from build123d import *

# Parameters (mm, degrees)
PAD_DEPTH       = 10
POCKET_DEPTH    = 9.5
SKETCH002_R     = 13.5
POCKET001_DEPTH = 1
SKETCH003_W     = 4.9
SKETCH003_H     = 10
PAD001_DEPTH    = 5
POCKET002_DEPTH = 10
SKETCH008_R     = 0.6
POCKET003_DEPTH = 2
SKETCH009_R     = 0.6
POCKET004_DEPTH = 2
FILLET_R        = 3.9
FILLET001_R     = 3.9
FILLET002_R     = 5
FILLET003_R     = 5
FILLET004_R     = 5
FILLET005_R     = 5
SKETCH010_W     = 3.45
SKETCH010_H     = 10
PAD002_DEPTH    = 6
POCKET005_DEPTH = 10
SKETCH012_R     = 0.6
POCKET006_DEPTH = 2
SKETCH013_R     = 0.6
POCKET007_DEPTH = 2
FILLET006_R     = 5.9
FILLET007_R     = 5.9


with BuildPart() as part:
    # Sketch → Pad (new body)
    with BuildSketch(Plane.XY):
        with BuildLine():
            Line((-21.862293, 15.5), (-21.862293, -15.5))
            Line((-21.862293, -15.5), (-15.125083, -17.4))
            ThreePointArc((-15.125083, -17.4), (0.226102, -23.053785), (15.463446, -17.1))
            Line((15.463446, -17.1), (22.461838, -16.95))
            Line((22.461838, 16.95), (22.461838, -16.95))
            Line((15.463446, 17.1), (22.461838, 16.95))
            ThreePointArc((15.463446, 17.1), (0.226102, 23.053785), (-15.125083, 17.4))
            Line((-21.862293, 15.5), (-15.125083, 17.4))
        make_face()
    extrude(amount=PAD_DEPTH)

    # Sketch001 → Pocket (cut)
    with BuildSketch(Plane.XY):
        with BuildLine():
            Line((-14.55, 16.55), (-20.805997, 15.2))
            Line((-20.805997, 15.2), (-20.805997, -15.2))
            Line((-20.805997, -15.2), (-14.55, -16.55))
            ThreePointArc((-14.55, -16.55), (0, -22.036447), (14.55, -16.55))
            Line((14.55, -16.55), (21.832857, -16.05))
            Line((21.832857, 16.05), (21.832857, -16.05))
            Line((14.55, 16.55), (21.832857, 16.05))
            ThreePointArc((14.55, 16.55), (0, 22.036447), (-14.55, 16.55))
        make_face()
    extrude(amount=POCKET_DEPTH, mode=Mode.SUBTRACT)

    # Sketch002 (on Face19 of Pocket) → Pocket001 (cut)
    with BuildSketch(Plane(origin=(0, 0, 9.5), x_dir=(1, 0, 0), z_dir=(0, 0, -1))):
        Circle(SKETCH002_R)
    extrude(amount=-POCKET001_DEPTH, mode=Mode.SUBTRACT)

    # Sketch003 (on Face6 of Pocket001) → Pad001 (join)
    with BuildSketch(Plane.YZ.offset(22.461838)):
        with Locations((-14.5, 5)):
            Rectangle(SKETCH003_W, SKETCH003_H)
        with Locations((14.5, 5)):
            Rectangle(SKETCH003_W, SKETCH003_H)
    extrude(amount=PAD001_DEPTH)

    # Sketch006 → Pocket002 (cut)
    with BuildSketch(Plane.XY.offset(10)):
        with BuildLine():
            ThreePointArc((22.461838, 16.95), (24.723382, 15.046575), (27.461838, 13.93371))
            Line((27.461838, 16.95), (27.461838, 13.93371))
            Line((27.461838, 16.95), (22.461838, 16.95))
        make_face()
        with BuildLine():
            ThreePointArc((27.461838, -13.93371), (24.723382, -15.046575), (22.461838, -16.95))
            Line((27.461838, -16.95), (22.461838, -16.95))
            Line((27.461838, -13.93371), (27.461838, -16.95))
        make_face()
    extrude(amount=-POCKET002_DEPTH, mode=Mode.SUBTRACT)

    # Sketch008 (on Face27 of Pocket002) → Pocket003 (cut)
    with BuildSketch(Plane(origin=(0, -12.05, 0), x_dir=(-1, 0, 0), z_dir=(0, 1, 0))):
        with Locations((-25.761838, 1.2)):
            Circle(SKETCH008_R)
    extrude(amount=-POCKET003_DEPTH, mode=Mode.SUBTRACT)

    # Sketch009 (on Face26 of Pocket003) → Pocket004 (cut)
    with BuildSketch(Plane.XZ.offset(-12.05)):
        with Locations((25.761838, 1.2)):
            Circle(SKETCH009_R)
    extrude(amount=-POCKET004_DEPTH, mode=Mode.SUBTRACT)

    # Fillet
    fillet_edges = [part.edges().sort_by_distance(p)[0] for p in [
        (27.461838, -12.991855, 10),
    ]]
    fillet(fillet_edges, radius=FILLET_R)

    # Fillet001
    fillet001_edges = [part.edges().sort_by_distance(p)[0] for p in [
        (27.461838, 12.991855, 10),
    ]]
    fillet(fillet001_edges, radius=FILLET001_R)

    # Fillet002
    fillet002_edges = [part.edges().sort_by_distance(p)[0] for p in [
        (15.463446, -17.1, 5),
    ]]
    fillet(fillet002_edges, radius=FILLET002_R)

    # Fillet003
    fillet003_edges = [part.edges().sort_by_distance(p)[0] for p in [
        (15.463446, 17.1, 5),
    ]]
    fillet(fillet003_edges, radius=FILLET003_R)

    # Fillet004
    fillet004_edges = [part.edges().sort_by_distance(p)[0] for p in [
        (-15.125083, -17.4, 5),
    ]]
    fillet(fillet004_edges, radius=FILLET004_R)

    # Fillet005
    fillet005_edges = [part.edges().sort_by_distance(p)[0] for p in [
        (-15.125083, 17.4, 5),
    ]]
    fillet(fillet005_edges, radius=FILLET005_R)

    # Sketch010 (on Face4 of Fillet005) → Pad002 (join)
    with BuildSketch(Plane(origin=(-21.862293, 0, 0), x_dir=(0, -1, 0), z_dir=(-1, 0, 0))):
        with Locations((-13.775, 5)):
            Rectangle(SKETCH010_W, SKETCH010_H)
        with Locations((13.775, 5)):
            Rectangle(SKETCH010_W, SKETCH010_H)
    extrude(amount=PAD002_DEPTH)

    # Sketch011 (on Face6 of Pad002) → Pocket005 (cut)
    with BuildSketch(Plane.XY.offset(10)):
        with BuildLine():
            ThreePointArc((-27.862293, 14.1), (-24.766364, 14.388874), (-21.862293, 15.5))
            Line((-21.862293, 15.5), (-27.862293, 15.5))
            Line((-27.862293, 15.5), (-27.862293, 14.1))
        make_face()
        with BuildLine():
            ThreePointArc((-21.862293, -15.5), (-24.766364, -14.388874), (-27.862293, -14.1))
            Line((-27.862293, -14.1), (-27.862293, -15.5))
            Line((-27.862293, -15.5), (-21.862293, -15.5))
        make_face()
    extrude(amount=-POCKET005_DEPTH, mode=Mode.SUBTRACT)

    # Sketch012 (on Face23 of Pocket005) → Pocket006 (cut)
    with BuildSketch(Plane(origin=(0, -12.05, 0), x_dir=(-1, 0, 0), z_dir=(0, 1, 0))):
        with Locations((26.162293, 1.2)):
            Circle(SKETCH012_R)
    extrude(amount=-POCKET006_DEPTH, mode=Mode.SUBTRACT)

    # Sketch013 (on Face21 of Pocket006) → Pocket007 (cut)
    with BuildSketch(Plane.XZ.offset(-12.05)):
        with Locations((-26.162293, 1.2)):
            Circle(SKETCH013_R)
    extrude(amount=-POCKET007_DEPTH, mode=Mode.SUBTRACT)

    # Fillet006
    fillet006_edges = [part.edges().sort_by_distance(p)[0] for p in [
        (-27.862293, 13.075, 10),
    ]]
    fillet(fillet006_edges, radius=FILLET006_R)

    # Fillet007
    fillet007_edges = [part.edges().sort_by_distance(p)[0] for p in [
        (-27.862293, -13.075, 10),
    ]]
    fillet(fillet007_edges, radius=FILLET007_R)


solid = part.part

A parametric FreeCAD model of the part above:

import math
import FreeCAD as App
import Part
import Sketcher

V = App.Vector
Q = App.Units.Quantity


def edges_at(feature, points):
    """Names of the edges that pass closest to the given points."""
    edges = feature.Shape.Edges
    near = lambda p: min(range(len(edges)), key=lambda i: edges[i].distToShape(Part.Vertex(*p))[0])
    return sorted({f"Edge{near(p) + 1}" for p in points})


def add_polygon(sketch, points):
    """Adds a closed chain of lines whose ends are joined by coincident constraints."""
    first, n = sketch.GeometryCount, len(points)
    for a, b in zip(points, points[1:] + points[:1]):
        sketch.addGeometry(Part.LineSegment(App.Vector(*a, 0), App.Vector(*b, 0)), False)
    for i in range(n):
        sketch.addConstraint(Sketcher.Constraint("Coincident", first + i, 2, first + (i + 1) % n, 1))

doc = App.newDocument("Part")
params = doc.addObject("Spreadsheet::Sheet", "Params")
for row, (alias, value) in enumerate([
    ("sketch1_height", "31 mm"),
    ("sketch1_length", "7 mm"),
    ("sketch1_height2", "33.9 mm"),
    ("pad1_length", "10 mm"),
    ("sketch2_height", "30.4 mm"),
    ("sketch2_height2", "32.1 mm"),
    ("sketch2_length", "6.4 mm"),
    ("sketch2_length2", "7.3 mm"),
    ("pocket1_length", "9.5 mm"),
    ("sketch3_diameter", "27 mm"),
    ("pocket2_length", "1 mm"),
    ("sketch4_height", "10 mm"),
    ("sketch4_width", "4.9 mm"),
    ("pad2_length", "5 mm"),
    ("sketch5_width", "5 mm"),
    ("pocket3_length", "10 mm"),
    ("sketch6_diameter", "1.2 mm"),
    ("pocket4_length", "2 mm"),
    ("sketch7_diameter", "1.2 mm"),
    ("pocket5_length", "2 mm"),
    ("fillet_radius", "3.9 mm"),
    ("fillet2_radius", "3.9 mm"),
    ("fillet3_radius", "5 mm"),
    ("fillet4_radius", "5 mm"),
    ("fillet5_radius", "5 mm"),
    ("fillet6_radius", "5 mm"),
    ("sketch8_height", "10 mm"),
    ("sketch8_width", "3.45 mm"),
    ("pad3_length", "6 mm"),
    ("sketch9_width", "6 mm"),
    ("sketch9_height", "1.4 mm"),
    ("pocket6_length", "10 mm"),
    ("sketch10_diameter", "1.2 mm"),
    ("pocket7_length", "2 mm"),
    ("sketch11_diameter", "1.2 mm"),
    ("pocket8_length", "2 mm"),
    ("fillet7_radius", "5.9 mm"),
    ("fillet8_radius", "5.9 mm"),
], start=1):
    params.set(f"A{row}", alias)
    params.set(f"B{row}", "=" + value)
    params.setAlias(f"B{row}", alias)

body = doc.addObject("PartDesign::Body", "Body")

# Sketch on XY plane
sketch1 = body.newObject("Sketcher::SketchObject", "Sketch")
sketch1.AttachmentSupport = (doc.getObject("XY_Plane"), [""])
sketch1.MapMode = "FlatFace"
sketch1.addGeometry(Part.LineSegment(V(-22, 16, 0), V(-22, -16, 0)), False)
sketch1.addGeometry(Part.LineSegment(V(-22, -16, 0), V(-15, -17, 0)), False)
sketch1.addGeometry(Part.ArcOfCircle(Part.Circle(V(0, 0, 0), V(0, 0, 1), 23), math.radians(-131), math.radians(-48)), False)
sketch1.addGeometry(Part.LineSegment(V(15, -17, 0), V(22, -17, 0)), False)
sketch1.addGeometry(Part.LineSegment(V(22, -17, 0), V(22, 17, 0)), False)
sketch1.addGeometry(Part.LineSegment(V(22, 17, 0), V(15, 17, 0)), False)
sketch1.addGeometry(Part.ArcOfCircle(Part.Circle(V(0, 0, 0), V(0, 0, 1), 23), math.radians(48), math.radians(131)), False)
sketch1.addGeometry(Part.LineSegment(V(-15, 17, 0), V(-22, 16, 0)), False)
sketch1.addConstraint(Sketcher.Constraint("Coincident", 0, 2, 1, 1))
sketch1.addConstraint(Sketcher.Constraint("Coincident", 1, 2, 2, 1))
sketch1.addConstraint(Sketcher.Constraint("Coincident", 2, 2, 3, 1))
sketch1.addConstraint(Sketcher.Constraint("Coincident", 3, 2, 4, 1))
sketch1.addConstraint(Sketcher.Constraint("Coincident", 4, 2, 5, 1))
sketch1.addConstraint(Sketcher.Constraint("Coincident", 5, 2, 6, 1))
sketch1.addConstraint(Sketcher.Constraint("Coincident", 6, 2, 7, 1))
sketch1.addConstraint(Sketcher.Constraint("Coincident", 7, 2, 0, 1))
sketch1.addConstraint(Sketcher.Constraint("Vertical", 0))
sketch1.addConstraint(Sketcher.Constraint("Vertical", 4))
sketch1.addConstraint(Sketcher.Constraint("Coincident", 2, 3, -1, 1))
sketch1.addConstraint(Sketcher.Constraint("Coincident", 6, 3, -1, 1))
sketch1.addConstraint(Sketcher.Constraint("Equal", 2, 6))
sketch1.addConstraint(Sketcher.Constraint("Vertical", 2, 2, 5, 2))
sketch1.addConstraint(Sketcher.Constraint("Vertical", 1, 2, 6, 2))
sketch1.addConstraint(Sketcher.Constraint("Equal", 1, 3))
sketch1.addConstraint(Sketcher.Constraint("Equal", 3, 5))
sketch1.addConstraint(Sketcher.Constraint("Equal", 5, 7))
sketch1.addConstraint(Sketcher.Constraint("DistanceY", 0, 2, 0, 1, Q("31 mm")))
sketch1.addConstraint(Sketcher.Constraint("Distance", 1, Q("7 mm")))
sketch1.addConstraint(Sketcher.Constraint("DistanceY", 4, 1, 4, 2, Q("33.9 mm")))
sketch1.addConstraint(Sketcher.Constraint("DistanceY", 1, 2, -1, 1, Q("17.4 mm")))
sketch1.addConstraint(Sketcher.Constraint("DistanceY", 2, 2, -1, 1, Q("17.1 mm")))
sketch1.addConstraint(Sketcher.Constraint("Radius", 2, Q("23.054896 mm")))
sketch1.setExpression("Constraints[18]", "Params.sketch1_height")
sketch1.setExpression("Constraints[19]", "Params.sketch1_length")
sketch1.setExpression("Constraints[20]", "Params.sketch1_height2")
pad1 = body.newObject("PartDesign::Pad", "Pad")
pad1.Profile = sketch1
pad1.setExpression("Length", "Params.pad1_length")

# Sketch on XY plane
sketch2 = body.newObject("Sketcher::SketchObject", "Sketch001")
sketch2.AttachmentSupport = (doc.getObject("XY_Plane"), [""])
sketch2.MapMode = "FlatFace"
sketch2.addGeometry(Part.LineSegment(V(-15, 17, 0), V(-21, 15, 0)), False)
sketch2.addGeometry(Part.LineSegment(V(-21, 15, 0), V(-21, -15, 0)), False)
sketch2.addGeometry(Part.LineSegment(V(-21, -15, 0), V(-15, -17, 0)), False)
sketch2.addGeometry(Part.ArcOfCircle(Part.Circle(V(0, 0, 0), V(0, 0, 1), 22), math.radians(-131), math.radians(-49)), False)
sketch2.addGeometry(Part.LineSegment(V(15, -17, 0), V(22, -16, 0)), False)
sketch2.addGeometry(Part.LineSegment(V(22, -16, 0), V(22, 16, 0)), False)
sketch2.addGeometry(Part.LineSegment(V(22, 16, 0), V(15, 17, 0)), False)
sketch2.addGeometry(Part.ArcOfCircle(Part.Circle(V(0, 0, 0), V(0, 0, 1), 22), math.radians(49), math.radians(131)), False)
sketch2.addConstraint(Sketcher.Constraint("Coincident", 0, 2, 1, 1))
sketch2.addConstraint(Sketcher.Constraint("Coincident", 1, 2, 2, 1))
sketch2.addConstraint(Sketcher.Constraint("Coincident", 2, 2, 3, 1))
sketch2.addConstraint(Sketcher.Constraint("Coincident", 3, 2, 4, 1))
sketch2.addConstraint(Sketcher.Constraint("Coincident", 4, 2, 5, 1))
sketch2.addConstraint(Sketcher.Constraint("Coincident", 5, 2, 6, 1))
sketch2.addConstraint(Sketcher.Constraint("Coincident", 6, 2, 7, 1))
sketch2.addConstraint(Sketcher.Constraint("Coincident", 7, 2, 0, 1))
sketch2.addConstraint(Sketcher.Constraint("Vertical", 1))
sketch2.addConstraint(Sketcher.Constraint("Vertical", 5))
sketch2.addConstraint(Sketcher.Constraint("Coincident", 3, 3, -1, 1))
sketch2.addConstraint(Sketcher.Constraint("Coincident", 7, 3, -1, 1))
sketch2.addConstraint(Sketcher.Constraint("Equal", 3, 7))
sketch2.addConstraint(Sketcher.Constraint("Horizontal", 2, 2, 3, 2))
sketch2.addConstraint(Sketcher.Constraint("Horizontal", 6, 2, 7, 2))
sketch2.addConstraint(Sketcher.Constraint("Vertical", 3, 2, 6, 2))
sketch2.addConstraint(Sketcher.Constraint("Equal", 0, 2))
sketch2.addConstraint(Sketcher.Constraint("Equal", 4, 6))
sketch2.addConstraint(Sketcher.Constraint("DistanceY", 1, 2, 1, 1, Q("30.4 mm")))
sketch2.addConstraint(Sketcher.Constraint("DistanceY", 5, 1, 5, 2, Q("32.1 mm")))
sketch2.addConstraint(Sketcher.Constraint("Distance", 0, Q("6.4 mm")))
sketch2.addConstraint(Sketcher.Constraint("Distance", 4, Q("7.3 mm")))
sketch2.addConstraint(Sketcher.Constraint("DistanceX", 2, 2, 3, 2, Q("29.1 mm")))
sketch2.addConstraint(Sketcher.Constraint("DistanceY", 3, 2, 4, 2, Q("0.5 mm")))
sketch2.setExpression("Constraints[18]", "Params.sketch2_height")
sketch2.setExpression("Constraints[19]", "Params.sketch2_height2")
sketch2.setExpression("Constraints[20]", "Params.sketch2_length")
sketch2.setExpression("Constraints[21]", "Params.sketch2_length2")
pocket1 = body.newObject("PartDesign::Pocket", "Pocket")
pocket1.Profile = sketch2
pocket1.setExpression("Length", "Params.pocket1_length")
pocket1.Reversed = True

# Sketch on XY plane
sketch3 = body.newObject("Sketcher::SketchObject", "Sketch002")
sketch3.AttachmentSupport = (doc.getObject("XY_Plane"), [""])
sketch3.MapMode = "FlatFace"
sketch3.AttachmentOffset = App.Placement(V(0, 0, 9.5), App.Rotation())
sketch3.addGeometry(Part.Circle(V(0, 0, 0), V(0, 0, 1), 14), False)
sketch3.addConstraint(Sketcher.Constraint("Coincident", 0, 3, -1, 1))
sketch3.addConstraint(Sketcher.Constraint("Diameter", 0, Q("27 mm")))
sketch3.setExpression("Constraints[1]", "Params.sketch3_diameter")
pocket2 = body.newObject("PartDesign::Pocket", "Pocket001")
pocket2.Profile = sketch3
pocket2.setExpression("Length", "Params.pocket2_length")
pocket2.Reversed = True

# Sketch on YZ plane
sketch4 = body.newObject("Sketcher::SketchObject", "Sketch003")
sketch4.AttachmentSupport = (doc.getObject("YZ_Plane"), [""])
sketch4.MapMode = "FlatFace"
sketch4.AttachmentOffset = App.Placement(V(0, 0, 22.461838), App.Rotation())
add_polygon(sketch4, [(-16.9, 10), (-16.9, 0), (-12.1, 0), (-12.1, 10)])  # lines 0-3
add_polygon(sketch4, [(12.1, 10), (12.1, 0), (16.9, 0), (16.9, 10)])  # lines 4-7
sketch4.addConstraint(Sketcher.Constraint("Vertical", 0))
sketch4.addConstraint(Sketcher.Constraint("Horizontal", 1))
sketch4.addConstraint(Sketcher.Constraint("Vertical", 2))
sketch4.addConstraint(Sketcher.Constraint("Horizontal", 3))
sketch4.addConstraint(Sketcher.Constraint("Vertical", 4))
sketch4.addConstraint(Sketcher.Constraint("Horizontal", 5))
sketch4.addConstraint(Sketcher.Constraint("Vertical", 6))
sketch4.addConstraint(Sketcher.Constraint("Horizontal", 7))
sketch4.addConstraint(Sketcher.Constraint("Symmetric", 1, 2, 4, 2, -1, 1))
sketch4.addConstraint(Sketcher.Constraint("Symmetric", 0, 2, 5, 2, -2))
sketch4.addConstraint(Sketcher.Constraint("Horizontal", 3, 2, 6, 2))
sketch4.addConstraint(Sketcher.Constraint("DistanceY", 0, 2, 0, 1, Q("10 mm")))
sketch4.addConstraint(Sketcher.Constraint("DistanceX", 1, 1, 1, 2, Q("4.9 mm")))
sketch4.addConstraint(Sketcher.Constraint("DistanceX", 0, 2, 4, 2, Q("29 mm")))
sketch4.setExpression("Constraints[19]", "Params.sketch4_height")
sketch4.setExpression("Constraints[20]", "Params.sketch4_width")
pad2 = body.newObject("PartDesign::Pad", "Pad001")
pad2.Profile = sketch4
pad2.setExpression("Length", "Params.pad2_length")

# Sketch on XY plane
sketch5 = body.newObject("Sketcher::SketchObject", "Sketch004")
sketch5.AttachmentSupport = (doc.getObject("XY_Plane"), [""])
sketch5.MapMode = "FlatFace"
sketch5.AttachmentOffset = App.Placement(V(0, 0, 10), App.Rotation())
sketch5.addGeometry(Part.ArcOfCircle(Part.Circle(V(29.6, 23.2, 0), V(0, 0, 1), 9.5), math.radians(-139), math.radians(-103)), False)
sketch5.addGeometry(Part.LineSegment(V(27.5, 13.9, 0), V(27.5, 16.9, 0)), False)
sketch5.addGeometry(Part.LineSegment(V(27.5, 16.9, 0), V(22.5, 16.9, 0)), False)
sketch5.addGeometry(Part.ArcOfCircle(Part.Circle(V(29.6, -23.2, 0), V(0, 0, 1), 9.5), math.radians(103), math.radians(139)), False)
sketch5.addGeometry(Part.LineSegment(V(22.5, -16.9, 0), V(27.5, -16.9, 0)), False)
sketch5.addGeometry(Part.LineSegment(V(27.5, -16.9, 0), V(27.5, -13.9, 0)), False)
sketch5.addConstraint(Sketcher.Constraint("Coincident", 0, 2, 1, 1))
sketch5.addConstraint(Sketcher.Constraint("Coincident", 1, 2, 2, 1))
sketch5.addConstraint(Sketcher.Constraint("Coincident", 2, 2, 0, 1))
sketch5.addConstraint(Sketcher.Constraint("Coincident", 3, 2, 4, 1))
sketch5.addConstraint(Sketcher.Constraint("Coincident", 4, 2, 5, 1))
sketch5.addConstraint(Sketcher.Constraint("Coincident", 5, 2, 3, 1))
sketch5.addConstraint(Sketcher.Constraint("Vertical", 1))
sketch5.addConstraint(Sketcher.Constraint("Horizontal", 2))
sketch5.addConstraint(Sketcher.Constraint("Horizontal", 4))
sketch5.addConstraint(Sketcher.Constraint("Vertical", 5))
sketch5.addConstraint(Sketcher.Constraint("Equal", 0, 3))
sketch5.addConstraint(Sketcher.Constraint("Symmetric", 0, 3, 3, 3, -1))
sketch5.addConstraint(Sketcher.Constraint("Symmetric", 1, 2, 4, 2, -1))
sketch5.addConstraint(Sketcher.Constraint("DistanceX", 2, 2, 2, 1, Q("5 mm")))
sketch5.addConstraint(Sketcher.Constraint("DistanceY", 1, 2, 0, 3, Q("6.200002 mm")))
sketch5.addConstraint(Sketcher.Constraint("DistanceY", 3, 3, 1, 2, Q("40.100002 mm")))
sketch5.addConstraint(Sketcher.Constraint("Radius", 0, Q("9.463749 mm")))
sketch5.addConstraint(Sketcher.Constraint("DistanceX", -1, 1, 0, 3, Q("29.611839 mm")))
sketch5.setExpression("Constraints[13]", "Params.sketch5_width")
pocket3 = body.newObject("PartDesign::Pocket", "Pocket002")
pocket3.Profile = sketch5
pocket3.setExpression("Length", "Params.pocket3_length")

# Sketch on XZ plane
sketch6 = body.newObject("Sketcher::SketchObject", "Sketch005")
sketch6.AttachmentSupport = (doc.getObject("XZ_Plane"), [""])
sketch6.MapMode = "FlatFace"
sketch6.AttachmentOffset = App.Placement(V(0, 0, 12.05), App.Rotation())
sketch6.addGeometry(Part.Circle(V(25.8, 1.2, 0), V(0, 0, 1), 0.6), False)
sketch6.addConstraint(Sketcher.Constraint("Diameter", 0, Q("1.2 mm")))
sketch6.addConstraint(Sketcher.Constraint("DistanceY", -1, 1, 0, 3, Q("1.2 mm")))
sketch6.addConstraint(Sketcher.Constraint("DistanceX", -1, 1, 0, 3, Q("25.761838 mm")))
sketch6.setExpression("Constraints[0]", "Params.sketch6_diameter")
pocket4 = body.newObject("PartDesign::Pocket", "Pocket003")
pocket4.Profile = sketch6
pocket4.setExpression("Length", "Params.pocket4_length")
pocket4.Reversed = True

# Sketch on XZ plane
sketch7 = body.newObject("Sketcher::SketchObject", "Sketch006")
sketch7.AttachmentSupport = (doc.getObject("XZ_Plane"), [""])
sketch7.MapMode = "FlatFace"
sketch7.AttachmentOffset = App.Placement(V(0, 0, -12.05), App.Rotation())
sketch7.addGeometry(Part.Circle(V(25.8, 1.2, 0), V(0, 0, 1), 0.6), False)
sketch7.addConstraint(Sketcher.Constraint("Diameter", 0, Q("1.2 mm")))
sketch7.addConstraint(Sketcher.Constraint("DistanceY", -1, 1, 0, 3, Q("1.2 mm")))
sketch7.addConstraint(Sketcher.Constraint("DistanceX", -1, 1, 0, 3, Q("25.761838 mm")))
sketch7.setExpression("Constraints[0]", "Params.sketch7_diameter")
pocket5 = body.newObject("PartDesign::Pocket", "Pocket004")
pocket5.Profile = sketch7
pocket5.setExpression("Length", "Params.pocket5_length")
doc.recompute()

fillet = body.newObject("PartDesign::Fillet", "Fillet")
fillet.Base = (pocket5, edges_at(pocket5, [(27.462, -12.992, 10)]))
fillet.setExpression("Radius", "Params.fillet_radius")
doc.recompute()

fillet2 = body.newObject("PartDesign::Fillet", "Fillet001")
fillet2.Base = (fillet, edges_at(fillet, [(27.462, 12.992, 10)]))
fillet2.setExpression("Radius", "Params.fillet2_radius")
doc.recompute()

fillet3 = body.newObject("PartDesign::Fillet", "Fillet002")
fillet3.Base = (fillet2, edges_at(fillet2, [(15.463, -17.1, 5)]))
fillet3.setExpression("Radius", "Params.fillet3_radius")
doc.recompute()

fillet4 = body.newObject("PartDesign::Fillet", "Fillet003")
fillet4.Base = (fillet3, edges_at(fillet3, [(15.463, 17.1, 5)]))
fillet4.setExpression("Radius", "Params.fillet4_radius")
doc.recompute()

fillet5 = body.newObject("PartDesign::Fillet", "Fillet004")
fillet5.Base = (fillet4, edges_at(fillet4, [(-15.125, -17.4, 5)]))
fillet5.setExpression("Radius", "Params.fillet5_radius")
doc.recompute()

fillet6 = body.newObject("PartDesign::Fillet", "Fillet005")
fillet6.Base = (fillet5, edges_at(fillet5, [(-15.125, 17.4, 5)]))
fillet6.setExpression("Radius", "Params.fillet6_radius")

# Sketch on YZ plane
sketch8 = body.newObject("Sketcher::SketchObject", "Sketch007")
sketch8.AttachmentSupport = (doc.getObject("YZ_Plane"), [""])
sketch8.MapMode = "FlatFace"
sketch8.AttachmentOffset = App.Placement(V(0, 0, -21.862293), App.Rotation())
add_polygon(sketch8, [(15.5, 10), (15.5, 0), (12.1, 0), (12.1, 10)])  # lines 0-3
add_polygon(sketch8, [(-12.1, 10), (-12.1, 0), (-15.5, 0), (-15.5, 10)])  # lines 4-7
sketch8.addConstraint(Sketcher.Constraint("Vertical", 0))
sketch8.addConstraint(Sketcher.Constraint("Horizontal", 1))
sketch8.addConstraint(Sketcher.Constraint("Vertical", 2))
sketch8.addConstraint(Sketcher.Constraint("Horizontal", 3))
sketch8.addConstraint(Sketcher.Constraint("Vertical", 4))
sketch8.addConstraint(Sketcher.Constraint("Horizontal", 5))
sketch8.addConstraint(Sketcher.Constraint("Vertical", 6))
sketch8.addConstraint(Sketcher.Constraint("Horizontal", 7))
sketch8.addConstraint(Sketcher.Constraint("Symmetric", 1, 2, 4, 2, -1, 1))
sketch8.addConstraint(Sketcher.Constraint("Symmetric", 0, 2, 5, 2, -2))
sketch8.addConstraint(Sketcher.Constraint("Horizontal", 3, 2, 6, 2))
sketch8.addConstraint(Sketcher.Constraint("DistanceY", 0, 2, 0, 1, Q("10 mm")))
sketch8.addConstraint(Sketcher.Constraint("DistanceX", 5, 2, 0, 2, Q("31 mm")))
sketch8.addConstraint(Sketcher.Constraint("DistanceX", 1, 2, 1, 1, Q("3.45 mm")))
sketch8.setExpression("Constraints[19]", "Params.sketch8_height")
sketch8.setExpression("Constraints[21]", "Params.sketch8_width")
pad3 = body.newObject("PartDesign::Pad", "Pad002")
pad3.Profile = sketch8
pad3.setExpression("Length", "Params.pad3_length")
pad3.Reversed = True

# Sketch on XY plane
sketch9 = body.newObject("Sketcher::SketchObject", "Sketch008")
sketch9.AttachmentSupport = (doc.getObject("XY_Plane"), [""])
sketch9.MapMode = "FlatFace"
sketch9.AttachmentOffset = App.Placement(V(0, 0, 10), App.Rotation())
sketch9.addGeometry(Part.ArcOfCircle(Part.Circle(V(-27.4, 25.5, 0), V(0, 0, 1), 11.5), math.radians(-92), math.radians(-61)), False)
sketch9.addGeometry(Part.LineSegment(V(-21.9, 15.5, 0), V(-27.9, 15.5, 0)), False)
sketch9.addGeometry(Part.LineSegment(V(-27.9, 15.5, 0), V(-27.9, 14.1, 0)), False)
sketch9.addGeometry(Part.ArcOfCircle(Part.Circle(V(-27.4, -25.5, 0), V(0, 0, 1), 11.5), math.radians(61), math.radians(92)), False)
sketch9.addGeometry(Part.LineSegment(V(-27.9, -14.1, 0), V(-27.9, -15.5, 0)), False)
sketch9.addGeometry(Part.LineSegment(V(-27.9, -15.5, 0), V(-21.9, -15.5, 0)), False)
sketch9.addConstraint(Sketcher.Constraint("Coincident", 0, 2, 1, 1))
sketch9.addConstraint(Sketcher.Constraint("Coincident", 1, 2, 2, 1))
sketch9.addConstraint(Sketcher.Constraint("Coincident", 2, 2, 0, 1))
sketch9.addConstraint(Sketcher.Constraint("Coincident", 3, 2, 4, 1))
sketch9.addConstraint(Sketcher.Constraint("Coincident", 4, 2, 5, 1))
sketch9.addConstraint(Sketcher.Constraint("Coincident", 5, 2, 3, 1))
sketch9.addConstraint(Sketcher.Constraint("Horizontal", 1))
sketch9.addConstraint(Sketcher.Constraint("Vertical", 2))
sketch9.addConstraint(Sketcher.Constraint("Vertical", 4))
sketch9.addConstraint(Sketcher.Constraint("Horizontal", 5))
sketch9.addConstraint(Sketcher.Constraint("Equal", 0, 3))
sketch9.addConstraint(Sketcher.Constraint("Symmetric", 0, 3, 3, 3, -1))
sketch9.addConstraint(Sketcher.Constraint("Symmetric", 1, 2, 4, 2, -1))
sketch9.addConstraint(Sketcher.Constraint("DistanceX", 1, 2, 1, 1, Q("6 mm")))
sketch9.addConstraint(Sketcher.Constraint("DistanceY", 2, 2, 2, 1, Q("1.4 mm")))
sketch9.addConstraint(Sketcher.Constraint("DistanceY", 4, 2, 1, 2, Q("31 mm")))
sketch9.addConstraint(Sketcher.Constraint("Radius", 0, Q("11.45065 mm")))
sketch9.addConstraint(Sketcher.Constraint("DistanceX", 0, 3, -1, 1, Q("27.36829 mm")))
sketch9.setExpression("Constraints[13]", "Params.sketch9_width")
sketch9.setExpression("Constraints[14]", "Params.sketch9_height")
pocket6 = body.newObject("PartDesign::Pocket", "Pocket005")
pocket6.Profile = sketch9
pocket6.setExpression("Length", "Params.pocket6_length")

# Sketch on XZ plane
sketch10 = body.newObject("Sketcher::SketchObject", "Sketch009")
sketch10.AttachmentSupport = (doc.getObject("XZ_Plane"), [""])
sketch10.MapMode = "FlatFace"
sketch10.AttachmentOffset = App.Placement(V(0, 0, 12.05), App.Rotation())
sketch10.addGeometry(Part.Circle(V(-26.2, 1.2, 0), V(0, 0, 1), 0.6), False)
sketch10.addConstraint(Sketcher.Constraint("Diameter", 0, Q("1.2 mm")))
sketch10.addConstraint(Sketcher.Constraint("DistanceY", -1, 1, 0, 3, Q("1.2 mm")))
sketch10.addConstraint(Sketcher.Constraint("DistanceX", 0, 3, -1, 1, Q("26.162293 mm")))
sketch10.setExpression("Constraints[0]", "Params.sketch10_diameter")
pocket7 = body.newObject("PartDesign::Pocket", "Pocket006")
pocket7.Profile = sketch10
pocket7.setExpression("Length", "Params.pocket7_length")
pocket7.Reversed = True

# Sketch on XZ plane
sketch11 = body.newObject("Sketcher::SketchObject", "Sketch010")
sketch11.AttachmentSupport = (doc.getObject("XZ_Plane"), [""])
sketch11.MapMode = "FlatFace"
sketch11.AttachmentOffset = App.Placement(V(0, 0, -12.05), App.Rotation())
sketch11.addGeometry(Part.Circle(V(-26.2, 1.2, 0), V(0, 0, 1), 0.6), False)
sketch11.addConstraint(Sketcher.Constraint("Diameter", 0, Q("1.2 mm")))
sketch11.addConstraint(Sketcher.Constraint("DistanceY", -1, 1, 0, 3, Q("1.2 mm")))
sketch11.addConstraint(Sketcher.Constraint("DistanceX", 0, 3, -1, 1, Q("26.162293 mm")))
sketch11.setExpression("Constraints[0]", "Params.sketch11_diameter")
pocket8 = body.newObject("PartDesign::Pocket", "Pocket007")
pocket8.Profile = sketch11
pocket8.setExpression("Length", "Params.pocket8_length")
doc.recompute()

fillet7 = body.newObject("PartDesign::Fillet", "Fillet006")
fillet7.Base = (pocket8, edges_at(pocket8, [(-27.862, 13.075, 10)]))
fillet7.setExpression("Radius", "Params.fillet7_radius")
doc.recompute()

fillet8 = body.newObject("PartDesign::Fillet", "Fillet007")
fillet8.Base = (fillet7, edges_at(fillet7, [(-27.862, -13.075, 10)]))
fillet8.setExpression("Radius", "Params.fillet8_radius")

doc.recompute()
